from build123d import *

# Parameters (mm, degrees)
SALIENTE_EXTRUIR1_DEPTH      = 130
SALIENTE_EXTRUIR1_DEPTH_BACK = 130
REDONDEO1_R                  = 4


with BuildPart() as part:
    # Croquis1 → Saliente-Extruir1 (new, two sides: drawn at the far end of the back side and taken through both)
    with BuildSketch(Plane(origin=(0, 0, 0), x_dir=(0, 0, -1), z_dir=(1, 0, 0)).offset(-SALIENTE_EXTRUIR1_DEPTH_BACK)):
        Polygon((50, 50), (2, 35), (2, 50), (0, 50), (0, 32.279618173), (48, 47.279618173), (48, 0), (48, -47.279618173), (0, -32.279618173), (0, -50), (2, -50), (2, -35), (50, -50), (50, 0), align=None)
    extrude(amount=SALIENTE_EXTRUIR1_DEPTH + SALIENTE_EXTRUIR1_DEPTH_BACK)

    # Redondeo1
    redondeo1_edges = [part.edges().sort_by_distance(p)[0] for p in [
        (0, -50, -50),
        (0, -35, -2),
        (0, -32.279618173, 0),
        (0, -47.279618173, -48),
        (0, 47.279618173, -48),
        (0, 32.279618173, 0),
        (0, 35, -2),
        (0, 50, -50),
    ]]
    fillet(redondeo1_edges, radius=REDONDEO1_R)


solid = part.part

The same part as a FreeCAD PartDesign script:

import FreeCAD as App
import Part
import Sketcher
from FreeCAD import Vector
Q = App.Units.Quantity


def edges_at(feature, points):
    """Names of the edges that pass closest to the given points."""
    edges = feature.Shape.Edges
    near = lambda p: min(range(len(edges)), key=lambda i: edges[i].distToShape(Part.Vertex(*p))[0])
    return sorted({f"Edge{near(p) + 1}" for p in points})

doc = App.newDocument("Part")
body = doc.addObject("PartDesign::Body", "Body")

# Sketch on YZ plane
sketch1 = body.newObject("Sketcher::SketchObject", "Sketch")
sketch1.AttachmentSupport = (doc.getObject("YZ_Plane"), [""])
sketch1.MapMode = "FlatFace"
sketch1.addGeometry(Part.LineSegment(Vector(50, -50, 0), Vector(35, -2, 0)), False)
sketch1.addGeometry(Part.LineSegment(Vector(35, -2, 0), Vector(50, -2, 0)), False)
sketch1.addGeometry(Part.LineSegment(Vector(50, -2, 0), Vector(50, 0, 0)), False)
sketch1.addGeometry(Part.LineSegment(Vector(50, 0, 0), Vector(32.3, 0, 0)), False)
sketch1.addGeometry(Part.LineSegment(Vector(32.3, 0, 0), Vector(47.3, -48, 0)), False)
sketch1.addGeometry(Part.LineSegment(Vector(47.3, -48, 0), Vector(-47.3, -48, 0)), False)
sketch1.addGeometry(Part.LineSegment(Vector(-47.3, -48, 0), Vector(-32.3, 0, 0)), False)
sketch1.addGeometry(Part.LineSegment(Vector(-32.3, 0, 0), Vector(-50, 0, 0)), False)
sketch1.addGeometry(Part.LineSegment(Vector(-50, 0, 0), Vector(-50, -2, 0)), False)
sketch1.addGeometry(Part.LineSegment(Vector(-50, -2, 0), Vector(-35, -2, 0)), False)
sketch1.addGeometry(Part.LineSegment(Vector(-35, -2, 0), Vector(-50, -50, 0)), False)
sketch1.addGeometry(Part.LineSegment(Vector(-50, -50, 0), Vector(50, -50, 0)), False)
sketch1.addConstraint(Sketcher.Constraint("Coincident", 0, 2, 1, 1))
sketch1.addConstraint(Sketcher.Constraint("Coincident", 1, 2, 2, 1))
sketch1.addConstraint(Sketcher.Constraint("Coincident", 2, 2, 3, 1))
sketch1.addConstraint(Sketcher.Constraint("Coincident", 3, 2, 4, 1))
sketch1.addConstraint(Sketcher.Constraint("Coincident", 4, 2, 5, 1))
sketch1.addConstraint(Sketcher.Constraint("Coincident", 5, 2, 6, 1))
sketch1.addConstraint(Sketcher.Constraint("Coincident", 6, 2, 7, 1))
sketch1.addConstraint(Sketcher.Constraint("Coincident", 7, 2, 8, 1))
sketch1.addConstraint(Sketcher.Constraint("Coincident", 8, 2, 9, 1))
sketch1.addConstraint(Sketcher.Constraint("Coincident", 9, 2, 10, 1))
sketch1.addConstraint(Sketcher.Constraint("Coincident", 10, 2, 11, 1))
sketch1.addConstraint(Sketcher.Constraint("Coincident", 11, 2, 0, 1))
sketch1.addConstraint(Sketcher.Constraint("Horizontal", 1))
sketch1.addConstraint(Sketcher.Constraint("Vertical", 2))
sketch1.addConstraint(Sketcher.Constraint("Horizontal", 3))
sketch1.addConstraint(Sketcher.Constraint("Horizontal", 5))
sketch1.addConstraint(Sketcher.Constraint("Horizontal", 7))
sketch1.addConstraint(Sketcher.Constraint("Vertical", 8))
sketch1.addConstraint(Sketcher.Constraint("Horizontal", 9))
sketch1.addConstraint(Sketcher.Constraint("Horizontal", 11))
sketch1.addConstraint(Sketcher.Constraint("Symmetric", 3, 2, 6, 2, -1, 1))
sketch1.addConstraint(Sketcher.Constraint("Symmetric", 2, 2, 7, 2, -2))
sketch1.addConstraint(Sketcher.Constraint("Symmetric", 0, 2, 9, 2, -2))
sketch1.addConstraint(Sketcher.Constraint("Parallel", 0, 4))
sketch1.addConstraint(Sketcher.Constraint("Parallel", 6, 10))
sketch1.addConstraint(Sketcher.Constraint("Vertical", 8, 2, 10, 2))
sketch1.addConstraint(Sketcher.Constraint("Vertical", 2, 2, 11, 2))
sketch1.addConstraint(Sketcher.Constraint("Equal", 0, 4))
sketch1.addConstraint(Sketcher.Constraint("DistanceX", 1, 1, 1, 2, Q("15 mm")))
sketch1.addConstraint(Sketcher.Constraint("DistanceX", 11, 1, 11, 2, Q("100 mm")))
sketch1.addConstraint(Sketcher.Constraint("DistanceY", 2, 1, 2, 2, Q("2 mm")))
sketch1.addConstraint(Sketcher.Constraint("DistanceY", 4, 2, -1, 1, Q("48 mm")))
sketch1.addConstraint(Sketcher.Constraint("DistanceX", 3, 2, 3, 1, Q("17.720382 mm")))
pad1 = body.newObject("PartDesign::Pad", "Pad")
pad1.Profile = sketch1
pad1.Type = "TwoLengths"
pad1.Length = 130
pad1.Length2 = 130
doc.recompute()

fillet = body.newObject("PartDesign::Fillet", "Fillet")
fillet.Base = (pad1, edges_at(pad1, [
    (0, -50, -50),
    (0, -35, -2),
    (0, -32.28, 0),
    (0, -47.28, -48),
    (0, 47.28, -48),
    (0, 32.28, 0),
    (0, 35, -2),
    (0, 50, -50),
]))
fillet.Radius = 4

doc.recompute()
